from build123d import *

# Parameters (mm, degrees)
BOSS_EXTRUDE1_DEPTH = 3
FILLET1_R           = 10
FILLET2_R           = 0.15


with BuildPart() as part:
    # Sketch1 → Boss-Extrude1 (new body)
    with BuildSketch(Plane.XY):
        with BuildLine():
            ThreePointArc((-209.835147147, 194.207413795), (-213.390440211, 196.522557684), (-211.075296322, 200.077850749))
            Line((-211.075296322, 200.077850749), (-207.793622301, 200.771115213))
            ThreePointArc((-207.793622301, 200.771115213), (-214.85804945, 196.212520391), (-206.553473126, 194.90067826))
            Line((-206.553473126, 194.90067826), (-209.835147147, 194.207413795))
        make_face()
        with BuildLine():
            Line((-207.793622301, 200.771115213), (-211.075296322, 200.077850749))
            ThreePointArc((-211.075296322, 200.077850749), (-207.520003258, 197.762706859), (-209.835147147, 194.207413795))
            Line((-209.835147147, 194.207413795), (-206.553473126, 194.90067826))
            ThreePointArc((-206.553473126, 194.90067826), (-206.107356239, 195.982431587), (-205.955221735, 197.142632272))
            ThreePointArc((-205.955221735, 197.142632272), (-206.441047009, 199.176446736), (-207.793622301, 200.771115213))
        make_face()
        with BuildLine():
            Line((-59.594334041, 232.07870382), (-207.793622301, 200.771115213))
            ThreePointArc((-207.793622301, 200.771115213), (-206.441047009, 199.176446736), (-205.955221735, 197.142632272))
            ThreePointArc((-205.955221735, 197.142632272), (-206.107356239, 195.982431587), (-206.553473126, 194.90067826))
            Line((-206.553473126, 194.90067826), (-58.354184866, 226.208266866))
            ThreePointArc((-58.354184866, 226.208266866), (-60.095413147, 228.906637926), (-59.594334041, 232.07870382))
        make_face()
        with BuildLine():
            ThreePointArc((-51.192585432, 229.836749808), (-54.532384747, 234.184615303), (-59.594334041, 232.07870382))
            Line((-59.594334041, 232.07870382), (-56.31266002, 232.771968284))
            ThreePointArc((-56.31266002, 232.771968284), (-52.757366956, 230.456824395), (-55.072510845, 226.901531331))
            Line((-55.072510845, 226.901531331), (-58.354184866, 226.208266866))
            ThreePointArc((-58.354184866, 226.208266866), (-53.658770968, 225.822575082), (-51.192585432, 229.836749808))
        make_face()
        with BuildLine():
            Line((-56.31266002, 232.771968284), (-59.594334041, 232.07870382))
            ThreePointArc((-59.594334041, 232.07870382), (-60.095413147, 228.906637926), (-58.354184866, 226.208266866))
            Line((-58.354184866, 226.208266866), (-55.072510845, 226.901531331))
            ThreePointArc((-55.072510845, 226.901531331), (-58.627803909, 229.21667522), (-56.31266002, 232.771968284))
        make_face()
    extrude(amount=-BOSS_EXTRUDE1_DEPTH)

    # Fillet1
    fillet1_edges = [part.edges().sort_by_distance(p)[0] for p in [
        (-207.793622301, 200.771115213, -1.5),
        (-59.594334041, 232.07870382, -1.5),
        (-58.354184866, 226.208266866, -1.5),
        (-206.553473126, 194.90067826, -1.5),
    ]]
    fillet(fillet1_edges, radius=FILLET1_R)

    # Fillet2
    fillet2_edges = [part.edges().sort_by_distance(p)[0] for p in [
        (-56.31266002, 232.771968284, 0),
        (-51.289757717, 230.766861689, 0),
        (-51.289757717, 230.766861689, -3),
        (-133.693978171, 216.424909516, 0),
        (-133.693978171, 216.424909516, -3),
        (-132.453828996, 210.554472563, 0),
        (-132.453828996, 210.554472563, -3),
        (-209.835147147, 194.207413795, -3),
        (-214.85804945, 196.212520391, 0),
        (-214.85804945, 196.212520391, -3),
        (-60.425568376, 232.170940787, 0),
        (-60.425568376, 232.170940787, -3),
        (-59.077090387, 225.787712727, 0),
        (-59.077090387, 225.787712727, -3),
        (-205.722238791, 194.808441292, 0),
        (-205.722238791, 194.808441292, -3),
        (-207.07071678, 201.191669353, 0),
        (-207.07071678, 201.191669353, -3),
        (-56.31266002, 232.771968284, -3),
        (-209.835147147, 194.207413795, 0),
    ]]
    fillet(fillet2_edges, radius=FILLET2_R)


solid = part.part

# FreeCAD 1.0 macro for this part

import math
import FreeCAD as App
import Part
import Sketcher
from FreeCAD import Vector


def edges_at(feature, points):
    """Names of the edges that pass closest to the given points."""
    edges = feature.Shape.Edges
    near = lambda p: min(range(len(edges)), key=lambda i: edges[i].distToShape(Part.Vertex(*p))[0])
    return sorted({f"Edge{near(p) + 1}" for p in points})

doc = App.newDocument("Part")
body = doc.addObject("PartDesign::Body", "Body")

# Sketch on XY plane
sketch1 = doc.addObject("Sketcher::SketchObject", "Sketch")
body.addObject(sketch1)
sketch1.AttachmentSupport = (doc.XY_Plane, [""])
sketch1.MapMode = "FlatFace"
sketch1.addGeometry([
    Part.ArcOfCircle(Part.Circle(Vector(-210.5, 197.1, 0), Vector(0, 0, 1), 4.5), math.radians(54), math.radians(330)),  # 0
    Part.LineSegment(Vector(-206.6, 194.9, 0), Vector(-58.4, 226.2, 0)),  # 1
    Part.ArcOfCircle(Part.Circle(Vector(-55.7, 229.8, 0), Vector(0, 0, 1), 4.5), math.radians(-126), math.radians(0)),  # 2
    Part.ArcOfCircle(Part.Circle(Vector(-55.7, 229.8, 0), Vector(0, 0, 1), 4.5), math.radians(0), math.radians(150)),  # 3
    Part.LineSegment(Vector(-59.6, 232.1, 0), Vector(-207.8, 200.8, 0)),  # 4
    Part.ArcOfCircle(Part.Circle(Vector(-210.5, 197.1, 0), Vector(0, 0, 1), 3), math.radians(102), math.radians(282)),  # 5
    Part.ArcOfCircle(Part.Circle(Vector(-210.5, 197.1, 0), Vector(0, 0, 1), 3), math.radians(-78), math.radians(102)),  # 6
    Part.Circle(Vector(-55.7, 229.8, 0), Vector(0, 0, 1), 3),  # 7
], False)
sketch1.addConstraint([
    Sketcher.Constraint("Coincident", 0, 2, 1, 1),
    Sketcher.Constraint("Coincident", 1, 2, 2, 1),
    Sketcher.Constraint("Tangent", 2, 2, 3, 1),
    Sketcher.Constraint("Coincident", 3, 2, 4, 1),
    Sketcher.Constraint("Coincident", 4, 2, 0, 1),
    Sketcher.Constraint("Tangent", 5, 1, 6, 2),
    Sketcher.Constraint("Coincident", 6, 1, 5, 2),
    Sketcher.Constraint("Coincident", 5, 3, 0, 3),
    Sketcher.Constraint("Coincident", 7, 3, 2, 3),
    Sketcher.Constraint("Equal", 0, 2),
    Sketcher.Constraint("Equal", 2, 3),
    Sketcher.Constraint("Equal", 6, 7),
    Sketcher.Constraint("Parallel", 1, 4),
    Sketcher.Constraint("Horizontal", 7, 3, 2, 2),
    Sketcher.Constraint("Equal", 1, 4),
    Sketcher.Constraint("Diameter", 7, 6.0),
    Sketcher.Constraint("Radius", 0, 4.5),
    Sketcher.Constraint("DistanceX", 1, 2, 3, 3, 2.661599),
    Sketcher.Constraint("Distance", 1, 151.47011),
    Sketcher.Constraint("DistanceX", 0, 3, -1, 1, 210.455222),
    Sketcher.Constraint("DistanceY", -1, 1, 2, 3, 229.83675),
    Sketcher.Constraint("DistanceY", -1, 1, 0, 2, 194.900678),
    Sketcher.Constraint("DistanceY", -1, 1, 5, 1, 200.077851),
    Sketcher.Constraint("DistanceX", 5, 3, 0, 2, 3.901749),
    Sketcher.Constraint("DistanceY", 6, 1, 5, 3, 2.935218),
])
pad1 = doc.addObject("PartDesign::Pad", "Pad")
body.addObject(pad1)
pad1.Profile = sketch1
pad1.Length = 3
pad1.Reversed = True
doc.recompute()

fillet = doc.addObject("PartDesign::Fillet", "Fillet")
body.addObject(fillet)
fillet.Base = (pad1, edges_at(pad1, [
    (-207.794, 200.771, -1.5),
    (-59.594, 232.079, -1.5),
    (-58.354, 226.208, -1.5),
    (-206.553, 194.901, -1.5),
]))
fillet.Radius = 10
doc.recompute()

fillet2 = doc.addObject("PartDesign::Fillet", "Fillet001")
body.addObject(fillet2)
fillet2.Base = (fillet, edges_at(fillet, [
    (-55.073, 226.902, 0),
    (-53.728, 233.885, 0),
    (-53.728, 233.885, -3),
    (-133.694, 216.425, 0),
    (-133.694, 216.425, -3),
    (-132.454, 210.554, 0),
    (-132.454, 210.554, -3),
    (-213.39, 196.523, -3),
    (-214.858, 196.213, 0),
    (-214.858, 196.213, -3),
    (-60.426, 232.171, 0),
    (-60.426, 232.171, -3),
    (-59.077, 225.788, 0),
    (-59.077, 225.788, -3),
    (-205.722, 194.808, 0),
    (-205.722, 194.808, -3),
    (-207.071, 201.192, 0),
    (-207.071, 201.192, -3),
    (-55.073, 226.902, -3),
    (-213.39, 196.523, 0),
]))
fillet2.Radius = 0.15

doc.recompute()
